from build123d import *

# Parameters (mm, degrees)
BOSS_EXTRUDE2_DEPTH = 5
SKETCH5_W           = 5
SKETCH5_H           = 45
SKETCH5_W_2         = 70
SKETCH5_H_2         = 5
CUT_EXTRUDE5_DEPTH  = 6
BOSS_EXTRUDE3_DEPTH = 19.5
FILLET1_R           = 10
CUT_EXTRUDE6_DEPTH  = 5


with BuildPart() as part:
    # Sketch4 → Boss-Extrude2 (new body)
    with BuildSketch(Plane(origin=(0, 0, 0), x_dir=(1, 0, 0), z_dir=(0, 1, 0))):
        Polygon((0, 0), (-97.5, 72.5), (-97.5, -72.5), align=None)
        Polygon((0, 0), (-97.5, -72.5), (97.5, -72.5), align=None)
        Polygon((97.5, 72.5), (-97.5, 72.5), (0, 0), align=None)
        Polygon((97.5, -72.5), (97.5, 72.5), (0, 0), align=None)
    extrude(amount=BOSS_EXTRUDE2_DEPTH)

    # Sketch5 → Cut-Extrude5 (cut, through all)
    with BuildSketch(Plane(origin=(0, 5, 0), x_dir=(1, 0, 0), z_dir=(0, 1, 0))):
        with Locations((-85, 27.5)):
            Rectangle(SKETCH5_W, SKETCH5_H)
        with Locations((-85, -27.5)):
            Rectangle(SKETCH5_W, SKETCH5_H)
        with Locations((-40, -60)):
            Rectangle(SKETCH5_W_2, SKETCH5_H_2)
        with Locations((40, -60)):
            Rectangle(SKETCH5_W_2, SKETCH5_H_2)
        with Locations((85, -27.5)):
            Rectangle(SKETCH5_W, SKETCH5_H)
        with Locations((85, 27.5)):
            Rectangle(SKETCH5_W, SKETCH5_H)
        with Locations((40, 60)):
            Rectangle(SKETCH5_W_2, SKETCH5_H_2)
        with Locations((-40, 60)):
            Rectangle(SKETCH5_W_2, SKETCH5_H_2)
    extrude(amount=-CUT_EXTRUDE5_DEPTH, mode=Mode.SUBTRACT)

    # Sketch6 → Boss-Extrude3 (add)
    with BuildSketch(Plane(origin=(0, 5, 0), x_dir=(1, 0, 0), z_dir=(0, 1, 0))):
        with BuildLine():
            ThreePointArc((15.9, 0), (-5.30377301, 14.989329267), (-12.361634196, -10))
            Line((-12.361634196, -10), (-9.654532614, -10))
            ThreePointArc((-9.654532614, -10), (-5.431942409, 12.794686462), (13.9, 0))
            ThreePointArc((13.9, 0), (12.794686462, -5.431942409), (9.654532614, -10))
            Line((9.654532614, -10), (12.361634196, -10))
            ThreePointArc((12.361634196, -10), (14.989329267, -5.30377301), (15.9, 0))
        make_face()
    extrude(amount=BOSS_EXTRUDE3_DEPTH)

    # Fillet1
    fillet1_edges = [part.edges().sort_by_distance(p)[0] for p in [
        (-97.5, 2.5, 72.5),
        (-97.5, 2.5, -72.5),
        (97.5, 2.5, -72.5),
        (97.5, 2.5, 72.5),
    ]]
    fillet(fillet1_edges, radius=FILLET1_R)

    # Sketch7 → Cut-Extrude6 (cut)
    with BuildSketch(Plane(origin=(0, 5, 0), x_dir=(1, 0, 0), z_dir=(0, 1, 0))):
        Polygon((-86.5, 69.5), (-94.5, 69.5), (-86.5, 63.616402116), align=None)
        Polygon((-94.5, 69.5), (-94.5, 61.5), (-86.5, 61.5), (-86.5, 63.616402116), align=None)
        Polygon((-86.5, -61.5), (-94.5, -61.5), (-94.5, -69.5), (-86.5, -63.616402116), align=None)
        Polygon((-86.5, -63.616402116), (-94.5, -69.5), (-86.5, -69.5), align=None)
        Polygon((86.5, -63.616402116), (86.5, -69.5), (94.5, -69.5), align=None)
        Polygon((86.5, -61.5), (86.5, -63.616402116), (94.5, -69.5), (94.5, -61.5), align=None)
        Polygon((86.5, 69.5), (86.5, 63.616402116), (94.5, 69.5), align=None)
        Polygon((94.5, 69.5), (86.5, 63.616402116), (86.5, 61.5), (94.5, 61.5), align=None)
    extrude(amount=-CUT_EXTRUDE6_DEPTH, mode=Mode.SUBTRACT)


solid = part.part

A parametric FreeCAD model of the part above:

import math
import FreeCAD as App
import Part
import Sketcher

V = App.Vector


def edges_at(feature, points):
    """Names of the edges that pass closest to the given points."""
    edges = feature.Shape.Edges
    near = lambda p: min(range(len(edges)), key=lambda i: edges[i].distToShape(Part.Vertex(*p))[0])
    return sorted({f"Edge{near(p) + 1}" for p in points})

doc = App.newDocument("Part")
body = doc.addObject("PartDesign::Body", "Body")

# Sketch on XZ plane
sketch1 = body.newObject("Sketcher::SketchObject", "Sketch")
sketch1.AttachmentSupport = (doc.getObject("XZ_Plane"), [""])
sketch1.MapMode = "FlatFace"
sketch1.addGeometry([
    Part.LineSegment(V(-98, -72, 0), V(-98, 72, 0)),
    Part.LineSegment(V(-98, 72, 0), V(98, 72, 0)),
    Part.LineSegment(V(98, 72, 0), V(98, -72, 0)),
    Part.LineSegment(V(98, -72, 0), V(-98, -72, 0)),
], False)
sketch1.addConstraint([
    Sketcher.Constraint("Coincident", 0, 2, 1, 1),
    Sketcher.Constraint("Coincident", 1, 2, 2, 1),
    Sketcher.Constraint("Coincident", 2, 2, 3, 1),
    Sketcher.Constraint("Coincident", 3, 2, 0, 1),
    Sketcher.Constraint("Vertical", 0),
    Sketcher.Constraint("Horizontal", 1),
    Sketcher.Constraint("Vertical", 2),
    Sketcher.Constraint("Horizontal", 3),
    Sketcher.Constraint("Symmetric", 0, 2, 2, 2, -1, 1),
    Sketcher.Constraint("DistanceX", 1, 1, 1, 2, 195.0),
    Sketcher.Constraint("DistanceY", 0, 1, 0, 2, 145.0),
])
pad1 = body.newObject("PartDesign::Pad", "Pad")
pad1.Profile = sketch1
pad1.Length = 5
pad1.Reversed = True

# Sketch on XZ plane
sketch2 = body.newObject("Sketcher::SketchObject", "Sketch001")
sketch2.AttachmentSupport = (doc.getObject("XZ_Plane"), [""])
sketch2.MapMode = "FlatFace"
sketch2.AttachmentOffset = App.Placement(V(0, 0, -5), App.Rotation())
sketch2.addGeometry([
    Part.LineSegment(V(-88, -50, 0), V(-88, -5, 0)),  # 0
    Part.LineSegment(V(-88, -5, 0), V(-82, -5, 0)),  # 1
    Part.LineSegment(V(-82, -5, 0), V(-82, -50, 0)),  # 2
    Part.LineSegment(V(-82, -50, 0), V(-88, -50, 0)),  # 3
    Part.LineSegment(V(-88, 5, 0), V(-88, 50, 0)),  # 4
    Part.LineSegment(V(-88, 50, 0), V(-82, 50, 0)),  # 5
    Part.LineSegment(V(-82, 50, 0), V(-82, 5, 0)),  # 6
    Part.LineSegment(V(-82, 5, 0), V(-88, 5, 0)),  # 7
    Part.LineSegment(V(-75, 58, 0), V(-75, 62, 0)),  # 8
    Part.LineSegment(V(-75, 62, 0), V(-5, 62, 0)),  # 9
    Part.LineSegment(V(-5, 62, 0), V(-5, 58, 0)),  # 10
    Part.LineSegment(V(-5, 58, 0), V(-75, 58, 0)),  # 11
    Part.LineSegment(V(5, 58, 0), V(5, 62, 0)),  # 12
    Part.LineSegment(V(5, 62, 0), V(75, 62, 0)),  # 13
    Part.LineSegment(V(75, 62, 0), V(75, 58, 0)),  # 14
    Part.LineSegment(V(75, 58, 0), V(5, 58, 0)),  # 15
    Part.LineSegment(V(82, 5, 0), V(82, 50, 0)),  # 16
    Part.LineSegment(V(82, 50, 0), V(88, 50, 0)),  # 17
    Part.LineSegment(V(88, 50, 0), V(88, 5, 0)),  # 18
    Part.LineSegment(V(88, 5, 0), V(82, 5, 0)),  # 19
    Part.LineSegment(V(82, -50, 0), V(82, -5, 0)),  # 20
    Part.LineSegment(V(82, -5, 0), V(88, -5, 0)),  # 21
    Part.LineSegment(V(88, -5, 0), V(88, -50, 0)),  # 22
    Part.LineSegment(V(88, -50, 0), V(82, -50, 0)),  # 23
    Part.LineSegment(V(5, -62, 0), V(5, -58, 0)),  # 24
    Part.LineSegment(V(5, -58, 0), V(75, -58, 0)),  # 25
    Part.LineSegment(V(75, -58, 0), V(75, -62, 0)),  # 26
    Part.LineSegment(V(75, -62, 0), V(5, -62, 0)),  # 27
    Part.LineSegment(V(-75, -62, 0), V(-75, -58, 0)),  # 28
    Part.LineSegment(V(-75, -58, 0), V(-5, -58, 0)),  # 29
    Part.LineSegment(V(-5, -58, 0), V(-5, -62, 0)),  # 30
    Part.LineSegment(V(-5, -62, 0), V(-75, -62, 0)),  # 31
], False)
sketch2.addConstraint([
    Sketcher.Constraint("Coincident", 0, 2, 1, 1),
    Sketcher.Constraint("Coincident", 1, 2, 2, 1),
    Sketcher.Constraint("Coincident", 2, 2, 3, 1),
    Sketcher.Constraint("Coincident", 3, 2, 0, 1),
    Sketcher.Constraint("Coincident", 4, 2, 5, 1),
    Sketcher.Constraint("Coincident", 5, 2, 6, 1),
    Sketcher.Constraint("Coincident", 6, 2, 7, 1),
    Sketcher.Constraint("Coincident", 7, 2, 4, 1),
    Sketcher.Constraint("Coincident", 8, 2, 9, 1),
    Sketcher.Constraint("Coincident", 9, 2, 10, 1),
    Sketcher.Constraint("Coincident", 10, 2, 11, 1),
    Sketcher.Constraint("Coincident", 11, 2, 8, 1),
    Sketcher.Constraint("Coincident", 12, 2, 13, 1),
    Sketcher.Constraint("Coincident", 13, 2, 14, 1),
    Sketcher.Constraint("Coincident", 14, 2, 15, 1),
    Sketcher.Constraint("Coincident", 15, 2, 12, 1),
    Sketcher.Constraint("Coincident", 16, 2, 17, 1),
    Sketcher.Constraint("Coincident", 17, 2, 18, 1),
    Sketcher.Constraint("Coincident", 18, 2, 19, 1),
    Sketcher.Constraint("Coincident", 19, 2, 16, 1),
    Sketcher.Constraint("Coincident", 20, 2, 21, 1),
    Sketcher.Constraint("Coincident", 21, 2, 22, 1),
    Sketcher.Constraint("Coincident", 22, 2, 23, 1),
    Sketcher.Constraint("Coincident", 23, 2, 20, 1),
    Sketcher.Constraint("Coincident", 24, 2, 25, 1),
    Sketcher.Constraint("Coincident", 25, 2, 26, 1),
    Sketcher.Constraint("Coincident", 26, 2, 27, 1),
    Sketcher.Constraint("Coincident", 27, 2, 24, 1),
    Sketcher.Constraint("Coincident", 28, 2, 29, 1),
    Sketcher.Constraint("Coincident", 29, 2, 30, 1),
    Sketcher.Constraint("Coincident", 30, 2, 31, 1),
    Sketcher.Constraint("Coincident", 31, 2, 28, 1),
    Sketcher.Constraint("Vertical", 0),
    Sketcher.Constraint("Horizontal", 1),
    Sketcher.Constraint("Vertical", 2),
    Sketcher.Constraint("Horizontal", 3),
    Sketcher.Constraint("Vertical", 4),
    Sketcher.Constraint("Horizontal", 5),
    Sketcher.Constraint("Vertical", 6),
    Sketcher.Constraint("Horizontal", 7),
    Sketcher.Constraint("Vertical", 8),
    Sketcher.Constraint("Horizontal", 9),
    Sketcher.Constraint("Vertical", 10),
    Sketcher.Constraint("Horizontal", 11),
    Sketcher.Constraint("Vertical", 12),
    Sketcher.Constraint("Horizontal", 13),
    Sketcher.Constraint("Vertical", 14),
    Sketcher.Constraint("Horizontal", 15),
    Sketcher.Constraint("Vertical", 16),
    Sketcher.Constraint("Horizontal", 17),
    Sketcher.Constraint("Vertical", 18),
    Sketcher.Constraint("Horizontal", 19),
    Sketcher.Constraint("Vertical", 20),
    Sketcher.Constraint("Horizontal", 21),
    Sketcher.Constraint("Vertical", 22),
    Sketcher.Constraint("Horizontal", 23),
    Sketcher.Constraint("Vertical", 24),
    Sketcher.Constraint("Horizontal", 25),
    Sketcher.Constraint("Vertical", 26),
    Sketcher.Constraint("Horizontal", 27),
    Sketcher.Constraint("Vertical", 28),
    Sketcher.Constraint("Horizontal", 29),
    Sketcher.Constraint("Vertical", 30),
    Sketcher.Constraint("Horizontal", 31),
    Sketcher.Constraint("Symmetric", 2, 2, 16, 2, -1, 1),
    Sketcher.Constraint("Symmetric", 0, 2, 18, 2, -1, 1),
    Sketcher.Constraint("Symmetric", 6, 2, 20, 2, -1, 1),
    Sketcher.Constraint("Symmetric", 4, 2, 22, 2, -1, 1),
    Sketcher.Constraint("Symmetric", 10, 2, 24, 2, -1, 1),
    Sketcher.Constraint("Symmetric", 8, 2, 26, 2, -1, 1),
    Sketcher.Constraint("Symmetric", 14, 2, 28, 2, -1, 1),
    Sketcher.Constraint("Symmetric", 12, 2, 30, 2, -1, 1),
    Sketcher.Constraint("Symmetric", 9, 2, 12, 2, -2),
    Sketcher.Constraint("Symmetric", 11, 2, 14, 2, -2),
    Sketcher.Constraint("Symmetric", 5, 2, 16, 2, -2),
    Sketcher.Constraint("Symmetric", 7, 2, 18, 2, -2),
    Sketcher.Constraint("Equal", 23, 8),
    Sketcher.Constraint("DistanceX", 1, 1, 1, 2, 5.0),
    Sketcher.Constraint("DistanceX", 9, 1, 9, 2, 70.0),
    Sketcher.Constraint("DistanceY", 0, 1, 0, 2, 45.0),
    Sketcher.Constraint("DistanceY", 0, 2, -1, 1, 5.0),
    Sketcher.Constraint("DistanceX", 8, 2, -1, 1, 75.0),
    Sketcher.Constraint("DistanceX", 0, 2, -1, 1, 87.5),
    Sketcher.Constraint("DistanceY", -1, 1, 8, 2, 62.5),
])
pocket1 = body.newObject("PartDesign::Pocket", "Pocket")
pocket1.Profile = sketch2
pocket1.Type = "ThroughAll"
pocket1.Reversed = True

# Sketch on XZ plane
sketch3 = body.newObject("Sketcher::SketchObject", "Sketch002")
sketch3.AttachmentSupport = (doc.getObject("XZ_Plane"), [""])
sketch3.MapMode = "FlatFace"
sketch3.AttachmentOffset = App.Placement(V(0, 0, -5), App.Rotation())
sketch3.addGeometry([
    Part.ArcOfCircle(Part.Circle(V(0, 0, 0), V(0, 0, 1), 15.9), math.radians(141), math.radians(360)),  # 0
    Part.LineSegment(V(-12.4, 10, 0), V(-9.7, 10, 0)),  # 1
    Part.ArcOfCircle(Part.Circle(V(0, 0, 0), V(0, 0, 1), 13.9), math.radians(134), math.radians(360)),  # 2
    Part.ArcOfCircle(Part.Circle(V(0, 0, 0), V(0, 0, 1), 13.9), math.radians(0), math.radians(46)),  # 3
    Part.LineSegment(V(9.7, 10, 0), V(12.4, 10, 0)),  # 4
    Part.ArcOfCircle(Part.Circle(V(0, 0, 0), V(0, 0, 1), 15.9), math.radians(0), math.radians(39)),  # 5
], False)
sketch3.addConstraint([
    Sketcher.Constraint("Coincident", 0, 1, 1, 1),
    Sketcher.Constraint("Coincident", 1, 2, 2, 1),
    Sketcher.Constraint("Tangent", 2, 2, 3, 1),
    Sketcher.Constraint("Coincident", 3, 2, 4, 1),
    Sketcher.Constraint("Coincident", 4, 2, 5, 2),
    Sketcher.Constraint("Tangent", 5, 1, 0, 2),
    Sketcher.Constraint("Horizontal", 1),
    Sketcher.Constraint("Horizontal", 4),
    Sketcher.Constraint("Coincident", 0, 3, -1, 1),
    Sketcher.Constraint("Coincident", 2, 3, -1, 1),
    Sketcher.Constraint("Equal", 2, 3),
    Sketcher.Constraint("Equal", 0, 5),
    Sketcher.Constraint("PointOnObject", 2, 2, -1),
    Sketcher.Constraint("PointOnObject", 5, 1, -1),
    Sketcher.Constraint("Horizontal", 1, 2, 3, 2),
    Sketcher.Constraint("Radius", 0, 15.9),
    Sketcher.Constraint("Radius", 2, 13.9),
    Sketcher.Constraint("DistanceY", -1, 1, 0, 1, 10.0),
])
pad2 = body.newObject("PartDesign::Pad", "Pad001")
pad2.Profile = sketch3
pad2.Length = 19.5
pad2.Reversed = True
doc.recompute()

fillet = body.newObject("PartDesign::Fillet", "Fillet")
fillet.Base = (pad2, edges_at(pad2, [
    (-97.5, 2.5, 72.5),
    (-97.5, 2.5, -72.5),
    (97.5, 2.5, -72.5),
    (97.5, 2.5, 72.5),
]))
fillet.Radius = 10

# Sketch on XZ plane
sketch4 = body.newObject("Sketcher::SketchObject", "Sketch003")
sketch4.AttachmentSupport = (doc.getObject("XZ_Plane"), [""])
sketch4.MapMode = "FlatFace"
sketch4.AttachmentOffset = App.Placement(V(0, 0, -5), App.Rotation())
sketch4.addGeometry([
    Part.LineSegment(V(-86, -70, 0), V(-94, -70, 0)),  # 0
    Part.LineSegment(V(-94, -70, 0), V(-94, -62, 0)),  # 1
    Part.LineSegment(V(-94, -62, 0), V(-86, -62, 0)),  # 2
    Part.LineSegment(V(-86, -62, 0), V(-86, -70, 0)),  # 3
    Part.LineSegment(V(-86, 62, 0), V(-94, 62, 0)),  # 4
    Part.LineSegment(V(-94, 62, 0), V(-94, 70, 0)),  # 5
    Part.LineSegment(V(-94, 70, 0), V(-86, 70, 0)),  # 6
    Part.LineSegment(V(-86, 70, 0), V(-86, 62, 0)),  # 7
    Part.LineSegment(V(86, 70, 0), V(94, 70, 0)),  # 8
    Part.LineSegment(V(94, 70, 0), V(94, 62, 0)),  # 9
    Part.LineSegment(V(94, 62, 0), V(86, 62, 0)),  # 10
    Part.LineSegment(V(86, 62, 0), V(86, 70, 0)),  # 11
    Part.LineSegment(V(86, -70, 0), V(86, -62, 0)),  # 12
    Part.LineSegment(V(86, -62, 0), V(94, -62, 0)),  # 13
    Part.LineSegment(V(94, -62, 0), V(94, -70, 0)),  # 14
    Part.LineSegment(V(94, -70, 0), V(86, -70, 0)),  # 15
], False)
sketch4.addConstraint([
    Sketcher.Constraint("Coincident", 0, 2, 1, 1),
    Sketcher.Constraint("Coincident", 1, 2, 2, 1),
    Sketcher.Constraint("Coincident", 2, 2, 3, 1),
    Sketcher.Constraint("Coincident", 3, 2, 0, 1),
    Sketcher.Constraint("Coincident", 4, 2, 5, 1),
    Sketcher.Constraint("Coincident", 5, 2, 6, 1),
    Sketcher.Constraint("Coincident", 6, 2, 7, 1),
    Sketcher.Constraint("Coincident", 7, 2, 4, 1),
    Sketcher.Constraint("Coincident", 8, 2, 9, 1),
    Sketcher.Constraint("Coincident", 9, 2, 10, 1),
    Sketcher.Constraint("Coincident", 10, 2, 11, 1),
    Sketcher.Constraint("Coincident", 11, 2, 8, 1),
    Sketcher.Constraint("Coincident", 12, 2, 13, 1),
    Sketcher.Constraint("Coincident", 13, 2, 14, 1),
    Sketcher.Constraint("Coincident", 14, 2, 15, 1),
    Sketcher.Constraint("Coincident", 15, 2, 12, 1),
    Sketcher.Constraint("Horizontal", 0),
    Sketcher.Constraint("Vertical", 1),
    Sketcher.Constraint("Horizontal", 2),
    Sketcher.Constraint("Vertical", 3),
    Sketcher.Constraint("Horizontal", 4),
    Sketcher.Constraint("Vertical", 5),
    Sketcher.Constraint("Horizontal", 6),
    Sketcher.Constraint("Vertical", 7),
    Sketcher.Constraint("Horizontal", 8),
    Sketcher.Constraint("Vertical", 9),
    Sketcher.Constraint("Horizontal", 10),
    Sketcher.Constraint("Vertical", 11),
    Sketcher.Constraint("Vertical", 12),
    Sketcher.Constraint("Horizontal", 13),
    Sketcher.Constraint("Vertical", 14),
    Sketcher.Constraint("Horizontal", 15),
    Sketcher.Constraint("Symmetric", 0, 2, 8, 2, -1, 1),
    Sketcher.Constraint("Symmetric", 2, 2, 10, 2, -1, 1),
    Sketcher.Constraint("Symmetric", 7, 2, 12, 2, -1, 1),
    Sketcher.Constraint("Symmetric", 5, 2, 14, 2, -1, 1),
    Sketcher.Constraint("Symmetric", 5, 2, 8, 2, -2),
    Sketcher.Constraint("Symmetric", 7, 2, 10, 2, -2),
    Sketcher.Constraint("Equal", 15, 1),
    Sketcher.Constraint("DistanceX", 0, 2, 0, 1, 8.0),
    Sketcher.Constraint("DistanceY", 1, 2, 4, 2, 123.0),
    Sketcher.Constraint("DistanceX", 6, 2, 8, 2, 181.0),
])
pocket2 = body.newObject("PartDesign::Pocket", "Pocket001")
pocket2.Profile = sketch4
pocket2.Length = 5
pocket2.Reversed = True

doc.recompute()
